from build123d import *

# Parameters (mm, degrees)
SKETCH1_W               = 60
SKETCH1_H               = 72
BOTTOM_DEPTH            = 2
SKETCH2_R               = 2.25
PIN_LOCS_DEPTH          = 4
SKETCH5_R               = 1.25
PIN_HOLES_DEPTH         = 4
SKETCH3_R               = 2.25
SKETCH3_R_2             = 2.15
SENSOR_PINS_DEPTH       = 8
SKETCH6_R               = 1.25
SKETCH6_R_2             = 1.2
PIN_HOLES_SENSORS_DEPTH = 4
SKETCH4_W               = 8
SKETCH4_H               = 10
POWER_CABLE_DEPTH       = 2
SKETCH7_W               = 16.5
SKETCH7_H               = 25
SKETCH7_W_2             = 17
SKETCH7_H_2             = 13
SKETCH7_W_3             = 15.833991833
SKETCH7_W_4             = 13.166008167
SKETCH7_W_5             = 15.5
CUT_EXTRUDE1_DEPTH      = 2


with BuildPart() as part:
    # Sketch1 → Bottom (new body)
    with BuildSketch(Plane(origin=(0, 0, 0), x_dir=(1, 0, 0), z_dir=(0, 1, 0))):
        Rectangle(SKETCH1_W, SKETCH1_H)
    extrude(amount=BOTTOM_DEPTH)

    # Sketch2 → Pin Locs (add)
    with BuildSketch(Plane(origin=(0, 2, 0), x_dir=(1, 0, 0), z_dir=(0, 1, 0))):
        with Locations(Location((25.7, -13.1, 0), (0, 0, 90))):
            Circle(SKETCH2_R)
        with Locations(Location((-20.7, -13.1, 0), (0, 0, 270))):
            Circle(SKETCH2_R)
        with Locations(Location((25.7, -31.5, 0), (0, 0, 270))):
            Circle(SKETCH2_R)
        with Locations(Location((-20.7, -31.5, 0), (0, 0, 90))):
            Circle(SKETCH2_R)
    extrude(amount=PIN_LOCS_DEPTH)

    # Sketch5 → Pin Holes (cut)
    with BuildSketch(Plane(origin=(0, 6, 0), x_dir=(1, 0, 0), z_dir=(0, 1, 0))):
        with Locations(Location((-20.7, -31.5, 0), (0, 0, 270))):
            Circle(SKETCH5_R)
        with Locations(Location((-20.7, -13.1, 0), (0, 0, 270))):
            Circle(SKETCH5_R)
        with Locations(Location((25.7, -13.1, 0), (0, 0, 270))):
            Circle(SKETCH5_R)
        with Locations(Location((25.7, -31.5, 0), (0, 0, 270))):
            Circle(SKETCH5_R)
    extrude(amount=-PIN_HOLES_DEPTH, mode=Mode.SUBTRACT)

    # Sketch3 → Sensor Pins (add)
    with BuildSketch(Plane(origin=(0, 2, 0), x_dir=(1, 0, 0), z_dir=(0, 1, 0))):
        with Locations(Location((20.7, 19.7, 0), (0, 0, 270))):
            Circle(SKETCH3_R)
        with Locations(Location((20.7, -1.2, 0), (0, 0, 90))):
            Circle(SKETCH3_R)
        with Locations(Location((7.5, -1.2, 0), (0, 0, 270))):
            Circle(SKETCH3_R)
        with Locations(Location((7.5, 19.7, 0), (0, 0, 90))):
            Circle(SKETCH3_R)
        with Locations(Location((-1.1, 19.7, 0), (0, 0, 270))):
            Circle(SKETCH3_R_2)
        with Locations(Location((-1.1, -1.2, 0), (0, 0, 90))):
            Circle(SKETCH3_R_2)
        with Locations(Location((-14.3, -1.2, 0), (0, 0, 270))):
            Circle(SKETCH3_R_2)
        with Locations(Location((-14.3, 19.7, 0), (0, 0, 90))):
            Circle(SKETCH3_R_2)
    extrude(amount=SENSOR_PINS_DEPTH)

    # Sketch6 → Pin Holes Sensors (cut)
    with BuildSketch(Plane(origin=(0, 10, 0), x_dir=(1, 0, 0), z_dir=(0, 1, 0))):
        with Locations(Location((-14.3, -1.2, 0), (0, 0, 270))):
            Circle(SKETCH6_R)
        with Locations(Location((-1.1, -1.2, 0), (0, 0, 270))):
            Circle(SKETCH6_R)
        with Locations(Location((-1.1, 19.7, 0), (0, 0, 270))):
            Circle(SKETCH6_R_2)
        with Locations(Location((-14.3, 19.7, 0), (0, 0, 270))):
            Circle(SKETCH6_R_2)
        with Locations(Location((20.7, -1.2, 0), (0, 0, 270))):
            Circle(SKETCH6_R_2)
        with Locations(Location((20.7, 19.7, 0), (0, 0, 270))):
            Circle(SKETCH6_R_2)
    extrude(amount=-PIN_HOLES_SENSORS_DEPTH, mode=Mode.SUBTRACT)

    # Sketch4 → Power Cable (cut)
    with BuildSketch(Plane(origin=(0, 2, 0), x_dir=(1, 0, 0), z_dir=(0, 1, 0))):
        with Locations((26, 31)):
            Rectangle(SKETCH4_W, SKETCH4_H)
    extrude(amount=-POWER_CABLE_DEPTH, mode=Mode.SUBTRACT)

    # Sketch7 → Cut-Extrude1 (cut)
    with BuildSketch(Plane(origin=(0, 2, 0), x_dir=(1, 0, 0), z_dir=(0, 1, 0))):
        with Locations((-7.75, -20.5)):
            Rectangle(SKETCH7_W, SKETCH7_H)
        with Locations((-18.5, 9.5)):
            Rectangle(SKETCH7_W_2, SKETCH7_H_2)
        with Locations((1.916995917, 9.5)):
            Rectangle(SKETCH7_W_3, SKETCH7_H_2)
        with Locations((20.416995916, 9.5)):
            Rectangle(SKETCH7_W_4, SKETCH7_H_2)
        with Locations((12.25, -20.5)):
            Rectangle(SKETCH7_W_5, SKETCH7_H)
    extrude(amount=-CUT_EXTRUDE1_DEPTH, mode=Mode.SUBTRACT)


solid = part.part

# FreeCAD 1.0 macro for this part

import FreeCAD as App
import Part
import Sketcher
Q = App.Units.Quantity

doc = App.newDocument("Part")
params = doc.addObject("Spreadsheet::Sheet", "Params")
for row, (alias, value) in enumerate([
    ("sketch1_width", "60 mm"),
    ("sketch1_height", "72 mm"),
    ("pad1_length", "2 mm"),
    ("sketch2_diameter", "4.5 mm"),
    ("pad2_length", "4 mm"),
    ("sketch3_diameter", "2.5 mm"),
    ("pocket1_length", "4 mm"),
    ("sketch4_diameter", "4.5 mm"),
    ("sketch4_diameter2", "4.3 mm"),
    ("pad3_length", "8 mm"),
    ("sketch5_diameter", "2.5 mm"),
    ("sketch5_diameter2", "2.4 mm"),
    ("pocket2_length", "4 mm"),
    ("sketch6_width", "8 mm"),
    ("sketch6_height", "10 mm"),
    ("pocket3_length", "2 mm"),
    ("sketch7_width", "17 mm"),
    ("sketch7_height", "25 mm"),
    ("sketch7_height2", "13 mm"),
    ("sketch7_width2", "16.5 mm"),
    ("sketch7_width3", "15.5 mm"),
    ("pocket4_length", "2 mm"),
], start=1):
    params.set(f"A{row}", alias)
    params.set(f"B{row}", "=" + value)
    params.setAlias(f"B{row}", alias)

body = doc.addObject("PartDesign::Body", "Body")

# Sketch on XZ plane
sketch1 = doc.addObject("Sketcher::SketchObject", "Sketch")
body.addObject(sketch1)
sketch1.AttachmentSupport = (doc.XZ_Plane, [""])
sketch1.MapMode = "FlatFace"
sketch1.addGeometry([
    Part.LineSegment(App.Vector(-30, -36, 0), App.Vector(-30, 36, 0)),
    Part.LineSegment(App.Vector(-30, 36, 0), App.Vector(30, 36, 0)),
    Part.LineSegment(App.Vector(30, 36, 0), App.Vector(30, -36, 0)),
    Part.LineSegment(App.Vector(30, -36, 0), App.Vector(-30, -36, 0)),
], False)
sketch1.addConstraint([
    Sketcher.Constraint("Coincident", 0, 2, 1, 1),
    Sketcher.Constraint("Coincident", 1, 2, 2, 1),
    Sketcher.Constraint("Coincident", 2, 2, 3, 1),
    Sketcher.Constraint("Coincident", 3, 2, 0, 1),
    Sketcher.Constraint("Vertical", 0),
    Sketcher.Constraint("Horizontal", 1),
    Sketcher.Constraint("Vertical", 2),
    Sketcher.Constraint("Horizontal", 3),
    Sketcher.Constraint("Symmetric", 0, 2, 2, 2, -1, 1),
    Sketcher.Constraint("DistanceX", 1, 1, 1, 2, Q("60 mm")),
    Sketcher.Constraint("DistanceY", 0, 1, 0, 2, Q("72 mm")),
])
sketch1.setExpression("Constraints[9]", "Params.sketch1_width")
sketch1.setExpression("Constraints[10]", "Params.sketch1_height")
pad1 = doc.addObject("PartDesign::Pad", "Pad")
body.addObject(pad1)
pad1.Profile = sketch1
pad1.setExpression("Length", "Params.pad1_length")
pad1.Reversed = True

# Sketch on XZ plane
sketch2 = doc.addObject("Sketcher::SketchObject", "Sketch001")
body.addObject(sketch2)
sketch2.AttachmentSupport = (doc.XZ_Plane, [""])
sketch2.MapMode = "FlatFace"
sketch2.AttachmentOffset = App.Placement(App.Vector(0, 0, -2), App.Rotation())
sketch2.addGeometry([
    Part.Circle(App.Vector(25.7, 13.1, 0), App.Vector(0, 0, 1), 2.2),
    Part.Circle(App.Vector(-20.7, 13.1, 0), App.Vector(0, 0, 1), 2.2),
    Part.Circle(App.Vector(25.7, 31.5, 0), App.Vector(0, 0, 1), 2.2),
    Part.Circle(App.Vector(-20.7, 31.5, 0), App.Vector(0, 0, 1), 2.2),
], False)
sketch2.addConstraint([
    Sketcher.Constraint("Equal", 0, 1),
    Sketcher.Constraint("Equal", 1, 2),
    Sketcher.Constraint("Equal", 2, 3),
    Sketcher.Constraint("Horizontal", 0, 3, 1, 3),
    Sketcher.Constraint("Horizontal", 2, 3, 3, 3),
    Sketcher.Constraint("Vertical", 0, 3, 2, 3),
    Sketcher.Constraint("Vertical", 1, 3, 3, 3),
    Sketcher.Constraint("Diameter", 0, Q("4.5 mm")),
    Sketcher.Constraint("DistanceX", -1, 1, 0, 3, Q("25.7 mm")),
    Sketcher.Constraint("DistanceY", -1, 1, 0, 3, Q("13.1 mm")),
    Sketcher.Constraint("DistanceX", 1, 3, -1, 1, Q("20.7 mm")),
    Sketcher.Constraint("DistanceY", -1, 1, 2, 3, Q("31.5 mm")),
])
sketch2.setExpression("Constraints[7]", "Params.sketch2_diameter")
pad2 = doc.addObject("PartDesign::Pad", "Pad001")
body.addObject(pad2)
pad2.Profile = sketch2
pad2.setExpression("Length", "Params.pad2_length")
pad2.Reversed = True

# Sketch on XZ plane
sketch3 = doc.addObject("Sketcher::SketchObject", "Sketch002")
body.addObject(sketch3)
sketch3.AttachmentSupport = (doc.XZ_Plane, [""])
sketch3.MapMode = "FlatFace"
sketch3.AttachmentOffset = App.Placement(App.Vector(0, 0, -6), App.Rotation())
sketch3.addGeometry([
    Part.Circle(App.Vector(-20.7, 31.5, 0), App.Vector(0, 0, 1), 1.2),
    Part.Circle(App.Vector(-20.7, 13.1, 0), App.Vector(0, 0, 1), 1.2),
    Part.Circle(App.Vector(25.7, 13.1, 0), App.Vector(0, 0, 1), 1.2),
    Part.Circle(App.Vector(25.7, 31.5, 0), App.Vector(0, 0, 1), 1.2),
], False)
sketch3.addConstraint([
    Sketcher.Constraint("Equal", 0, 1),
    Sketcher.Constraint("Equal", 1, 2),
    Sketcher.Constraint("Equal", 2, 3),
    Sketcher.Constraint("Horizontal", 1, 3, 2, 3),
    Sketcher.Constraint("Horizontal", 0, 3, 3, 3),
    Sketcher.Constraint("Vertical", 0, 3, 1, 3),
    Sketcher.Constraint("Vertical", 2, 3, 3, 3),
    Sketcher.Constraint("Diameter", 0, Q("2.5 mm")),
    Sketcher.Constraint("DistanceX", 0, 3, -1, 1, Q("20.7 mm")),
    Sketcher.Constraint("DistanceY", -1, 1, 0, 3, Q("31.5 mm")),
    Sketcher.Constraint("DistanceY", -1, 1, 1, 3, Q("13.1 mm")),
    Sketcher.Constraint("DistanceX", -1, 1, 2, 3, Q("25.7 mm")),
])
sketch3.setExpression("Constraints[7]", "Params.sketch3_diameter")
pocket1 = doc.addObject("PartDesign::Pocket", "Pocket")
body.addObject(pocket1)
pocket1.Profile = sketch3
pocket1.setExpression("Length", "Params.pocket1_length")
pocket1.Reversed = True

# Sketch on XZ plane
sketch4 = doc.addObject("Sketcher::SketchObject", "Sketch003")
body.addObject(sketch4)
sketch4.AttachmentSupport = (doc.XZ_Plane, [""])
sketch4.MapMode = "FlatFace"
sketch4.AttachmentOffset = App.Placement(App.Vector(0, 0, -2), App.Rotation())
sketch4.addGeometry([
    Part.Circle(App.Vector(20.7, -19.7, 0), App.Vector(0, 0, 1), 2.2),  # 0
    Part.Circle(App.Vector(20.7, 1.2, 0), App.Vector(0, 0, 1), 2.2),  # 1
    Part.Circle(App.Vector(7.5, 1.2, 0), App.Vector(0, 0, 1), 2.2),  # 2
    Part.Circle(App.Vector(7.5, -19.7, 0), App.Vector(0, 0, 1), 2.2),  # 3
    Part.Circle(App.Vector(-1.1, -19.7, 0), App.Vector(0, 0, 1), 2.1),  # 4
    Part.Circle(App.Vector(-1.1, 1.2, 0), App.Vector(0, 0, 1), 2.1),  # 5
    Part.Circle(App.Vector(-14.3, 1.2, 0), App.Vector(0, 0, 1), 2.1),  # 6
    Part.Circle(App.Vector(-14.3, -19.7, 0), App.Vector(0, 0, 1), 2.1),  # 7
], False)
sketch4.addConstraint([
    Sketcher.Constraint("Equal", 0, 1),
    Sketcher.Constraint("Equal", 1, 2),
    Sketcher.Constraint("Equal", 2, 3),
    Sketcher.Constraint("Equal", 4, 5),
    Sketcher.Constraint("Equal", 5, 6),
    Sketcher.Constraint("Equal", 6, 7),
    Sketcher.Constraint("Horizontal", 1, 3, 2, 3),
    Sketcher.Constraint("Horizontal", 0, 3, 3, 3),
    Sketcher.Constraint("Horizontal", 3, 3, 4, 3),
    Sketcher.Constraint("Horizontal", 2, 3, 5, 3),
    Sketcher.Constraint("Horizontal", 5, 3, 6, 3),
    Sketcher.Constraint("Horizontal", 4, 3, 7, 3),
    Sketcher.Constraint("Vertical", 0, 3, 1, 3),
    Sketcher.Constraint("Vertical", 2, 3, 3, 3),
    Sketcher.Constraint("Vertical", 4, 3, 5, 3),
    Sketcher.Constraint("Vertical", 6, 3, 7, 3),
    Sketcher.Constraint("Diameter", 0, Q("4.5 mm")),
    Sketcher.Constraint("Diameter", 4, Q("4.3 mm")),
    Sketcher.Constraint("DistanceX", 6, 3, 1, 3, Q("35 mm")),
    Sketcher.Constraint("DistanceX", -1, 1, 0, 3, Q("20.7 mm")),
    Sketcher.Constraint("DistanceY", 0, 3, -1, 1, Q("19.7 mm")),
    Sketcher.Constraint("DistanceY", -1, 1, 1, 3, Q("1.2 mm")),
    Sketcher.Constraint("DistanceX", -1, 1, 2, 3, Q("7.5 mm")),
    Sketcher.Constraint("DistanceX", 4, 3, -1, 1, Q("1.1 mm")),
])
sketch4.setExpression("Constraints[16]", "Params.sketch4_diameter")
sketch4.setExpression("Constraints[17]", "Params.sketch4_diameter2")
pad3 = doc.addObject("PartDesign::Pad", "Pad002")
body.addObject(pad3)
pad3.Profile = sketch4
pad3.setExpression("Length", "Params.pad3_length")
pad3.Reversed = True

# Sketch on XZ plane
sketch5 = doc.addObject("Sketcher::SketchObject", "Sketch004")
body.addObject(sketch5)
sketch5.AttachmentSupport = (doc.XZ_Plane, [""])
sketch5.MapMode = "FlatFace"
sketch5.AttachmentOffset = App.Placement(App.Vector(0, 0, -10), App.Rotation())
sketch5.addGeometry([
    Part.Circle(App.Vector(-14.3, 1.2, 0), App.Vector(0, 0, 1), 1.2),  # 0
    Part.Circle(App.Vector(-1.1, 1.2, 0), App.Vector(0, 0, 1), 1.2),  # 1
    Part.Circle(App.Vector(-1.1, -19.7, 0), App.Vector(0, 0, 1), 1.2),  # 2
    Part.Circle(App.Vector(-14.3, -19.7, 0), App.Vector(0, 0, 1), 1.2),  # 3
    Part.Circle(App.Vector(20.7, 1.2, 0), App.Vector(0, 0, 1), 1.2),  # 4
    Part.Circle(App.Vector(20.7, -19.7, 0), App.Vector(0, 0, 1), 1.2),  # 5
], False)
sketch5.addConstraint([
    Sketcher.Constraint("Equal", 0, 1),
    Sketcher.Constraint("Equal", 2, 3),
    Sketcher.Constraint("Equal", 3, 4),
    Sketcher.Constraint("Equal", 4, 5),
    Sketcher.Constraint("Horizontal", 0, 3, 1, 3),
    Sketcher.Constraint("Horizontal", 2, 3, 3, 3),
    Sketcher.Constraint("Horizontal", 1, 3, 4, 3),
    Sketcher.Constraint("Horizontal", 3, 3, 5, 3),
    Sketcher.Constraint("Vertical", 1, 3, 2, 3),
    Sketcher.Constraint("Vertical", 0, 3, 3, 3),
    Sketcher.Constraint("Vertical", 4, 3, 5, 3),
    Sketcher.Constraint("Diameter", 0, Q("2.5 mm")),
    Sketcher.Constraint("Diameter", 2, Q("2.4 mm")),
    Sketcher.Constraint("DistanceX", 0, 3, 4, 3, Q("35 mm")),
    Sketcher.Constraint("DistanceX", 0, 3, -1, 1, Q("14.3 mm")),
    Sketcher.Constraint("DistanceY", -1, 1, 0, 3, Q("1.2 mm")),
    Sketcher.Constraint("DistanceX", 1, 3, -1, 1, Q("1.1 mm")),
    Sketcher.Constraint("DistanceY", 2, 3, -1, 1, Q("19.7 mm")),
])
sketch5.setExpression("Constraints[11]", "Params.sketch5_diameter")
sketch5.setExpression("Constraints[12]", "Params.sketch5_diameter2")
pocket2 = doc.addObject("PartDesign::Pocket", "Pocket001")
body.addObject(pocket2)
pocket2.Profile = sketch5
pocket2.setExpression("Length", "Params.pocket2_length")
pocket2.Reversed = True

# Sketch on XZ plane
sketch6 = doc.addObject("Sketcher::SketchObject", "Sketch005")
body.addObject(sketch6)
sketch6.AttachmentSupport = (doc.XZ_Plane, [""])
sketch6.MapMode = "FlatFace"
sketch6.AttachmentOffset = App.Placement(App.Vector(0, 0, -2), App.Rotation())
sketch6.addGeometry([
    Part.LineSegment(App.Vector(22, -36, 0), App.Vector(22, -26, 0)),
    Part.LineSegment(App.Vector(22, -26, 0), App.Vector(30, -26, 0)),
    Part.LineSegment(App.Vector(30, -26, 0), App.Vector(30, -36, 0)),
    Part.LineSegment(App.Vector(30, -36, 0), App.Vector(22, -36, 0)),
], False)
sketch6.addConstraint([
    Sketcher.Constraint("Coincident", 0, 2, 1, 1),
    Sketcher.Constraint("Coincident", 1, 2, 2, 1),
    Sketcher.Constraint("Coincident", 2, 2, 3, 1),
    Sketcher.Constraint("Coincident", 3, 2, 0, 1),
    Sketcher.Constraint("Vertical", 0),
    Sketcher.Constraint("Horizontal", 1),
    Sketcher.Constraint("Vertical", 2),
    Sketcher.Constraint("Horizontal", 3),
    Sketcher.Constraint("DistanceX", 1, 1, 1, 2, Q("8 mm")),
    Sketcher.Constraint("DistanceY", 0, 1, 0, 2, Q("10 mm")),
    Sketcher.Constraint("DistanceX", -1, 1, 0, 2, Q("22 mm")),
    Sketcher.Constraint("DistanceY", 0, 2, -1, 1, Q("26 mm")),
])
sketch6.setExpression("Constraints[8]", "Params.sketch6_width")
sketch6.setExpression("Constraints[9]", "Params.sketch6_height")
pocket3 = doc.addObject("PartDesign::Pocket", "Pocket002")
body.addObject(pocket3)
pocket3.Profile = sketch6
pocket3.setExpression("Length", "Params.pocket3_length")
pocket3.Reversed = True

# Sketch on XZ plane
sketch7 = doc.addObject("Sketcher::SketchObject", "Sketch006")
body.addObject(sketch7)
sketch7.AttachmentSupport = (doc.XZ_Plane, [""])
sketch7.MapMode = "FlatFace"
sketch7.AttachmentOffset = App.Placement(App.Vector(0, 0, -2), App.Rotation())
sketch7.addGeometry([
    Part.LineSegment(App.Vector(-16, 8, 0), App.Vector(-16, 33, 0)),  # 0
    Part.LineSegment(App.Vector(-16, 33, 0), App.Vector(0, 33, 0)),  # 1
    Part.LineSegment(App.Vector(0, 33, 0), App.Vector(0, 8, 0)),  # 2
    Part.LineSegment(App.Vector(0, 8, 0), App.Vector(-16, 8, 0)),  # 3
    Part.LineSegment(App.Vector(-27, -16, 0), App.Vector(-27, -3, 0)),  # 4
    Part.LineSegment(App.Vector(-27, -3, 0), App.Vector(-10, -3, 0)),  # 5
    Part.LineSegment(App.Vector(-10, -3, 0), App.Vector(-10, -16, 0)),  # 6
    Part.LineSegment(App.Vector(-10, -16, 0), App.Vector(-27, -16, 0)),  # 7
    Part.LineSegment(App.Vector(-6, -16, 0), App.Vector(-6, -3, 0)),  # 8
    Part.LineSegment(App.Vector(-6, -3, 0), App.Vector(10, -3, 0)),  # 9
    Part.LineSegment(App.Vector(10, -3, 0), App.Vector(10, -16, 0)),  # 10
    Part.LineSegment(App.Vector(10, -16, 0), App.Vector(-6, -16, 0)),  # 11
    Part.LineSegment(App.Vector(14, -16, 0), App.Vector(14, -3, 0)),  # 12
    Part.LineSegment(App.Vector(14, -3, 0), App.Vector(27, -3, 0)),  # 13
    Part.LineSegment(App.Vector(27, -3, 0), App.Vector(27, -16, 0)),  # 14
    Part.LineSegment(App.Vector(27, -16, 0), App.Vector(14, -16, 0)),  # 15
    Part.LineSegment(App.Vector(4, 8, 0), App.Vector(4, 33, 0)),  # 16
    Part.LineSegment(App.Vector(4, 33, 0), App.Vector(20, 33, 0)),  # 17
    Part.LineSegment(App.Vector(20, 33, 0), App.Vector(20, 8, 0)),  # 18
    Part.LineSegment(App.Vector(20, 8, 0), App.Vector(4, 8, 0)),  # 19
], False)
sketch7.addConstraint([
    Sketcher.Constraint("Coincident", 0, 2, 1, 1),
    Sketcher.Constraint("Coincident", 1, 2, 2, 1),
    Sketcher.Constraint("Coincident", 2, 2, 3, 1),
    Sketcher.Constraint("Coincident", 3, 2, 0, 1),
    Sketcher.Constraint("Coincident", 4, 2, 5, 1),
    Sketcher.Constraint("Coincident", 5, 2, 6, 1),
    Sketcher.Constraint("Coincident", 6, 2, 7, 1),
    Sketcher.Constraint("Coincident", 7, 2, 4, 1),
    Sketcher.Constraint("Coincident", 8, 2, 9, 1),
    Sketcher.Constraint("Coincident", 9, 2, 10, 1),
    Sketcher.Constraint("Coincident", 10, 2, 11, 1),
    Sketcher.Constraint("Coincident", 11, 2, 8, 1),
    Sketcher.Constraint("Coincident", 12, 2, 13, 1),
    Sketcher.Constraint("Coincident", 13, 2, 14, 1),
    Sketcher.Constraint("Coincident", 14, 2, 15, 1),
    Sketcher.Constraint("Coincident", 15, 2, 12, 1),
    Sketcher.Constraint("Coincident", 16, 2, 17, 1),
    Sketcher.Constraint("Coincident", 17, 2, 18, 1),
    Sketcher.Constraint("Coincident", 18, 2, 19, 1),
    Sketcher.Constraint("Coincident", 19, 2, 16, 1),
    Sketcher.Constraint("Vertical", 0),
    Sketcher.Constraint("Horizontal", 1),
    Sketcher.Constraint("Vertical", 2),
    Sketcher.Constraint("Horizontal", 3),
    Sketcher.Constraint("Vertical", 4),
    Sketcher.Constraint("Horizontal", 5),
    Sketcher.Constraint("Vertical", 6),
    Sketcher.Constraint("Horizontal", 7),
    Sketcher.Constraint("Vertical", 8),
    Sketcher.Constraint("Horizontal", 9),
    Sketcher.Constraint("Vertical", 10),
    Sketcher.Constraint("Horizontal", 11),
    Sketcher.Constraint("Vertical", 12),
    Sketcher.Constraint("Horizontal", 13),
    Sketcher.Constraint("Vertical", 14),
    Sketcher.Constraint("Horizontal", 15),
    Sketcher.Constraint("Vertical", 16),
    Sketcher.Constraint("Horizontal", 17),
    Sketcher.Constraint("Vertical", 18),
    Sketcher.Constraint("Horizontal", 19),
    Sketcher.Constraint("Symmetric", 4, 2, 13, 2, -2),
    Sketcher.Constraint("Horizontal", 5, 2, 8, 2),
    Sketcher.Constraint("Horizontal", 7, 2, 10, 2),
    Sketcher.Constraint("Horizontal", 11, 2, 14, 2),
    Sketcher.Constraint("Horizontal", 1, 2, 16, 2),
    Sketcher.Constraint("Horizontal", 3, 2, 18, 2),
    Sketcher.Constraint("DistanceX", 5, 1, 5, 2, Q("17 mm")),
    Sketcher.Constraint("DistanceY", 0, 1, 0, 2, Q("25 mm")),
    Sketcher.Constraint("DistanceY", 4, 1, 4, 2, Q("13 mm")),
    Sketcher.Constraint("DistanceX", 1, 1, 1, 2, Q("16.5 mm")),
    Sketcher.Constraint("DistanceX", 17, 1, 17, 2, Q("15.5 mm")),
    Sketcher.Constraint("DistanceX", 0, 2, -1, 1, Q("16 mm")),
    Sketcher.Constraint("DistanceY", -1, 1, 0, 2, Q("33 mm")),
    Sketcher.Constraint("DistanceX", 4, 2, -1, 1, Q("27 mm")),
    Sketcher.Constraint("DistanceY", 4, 2, -1, 1, Q("3 mm")),
    Sketcher.Constraint("DistanceX", 8, 2, -1, 1, Q("6 mm")),
    Sketcher.Constraint("DistanceX", -1, 1, 17, 2, Q("20 mm")),
    Sketcher.Constraint("DistanceX", 9, 2, 12, 2, Q("4 mm")),
    Sketcher.Constraint("DistanceX", 9, 1, 9, 2, Q("15.833992 mm")),
])
sketch7.setExpression("Constraints[46]", "Params.sketch7_width")
sketch7.setExpression("Constraints[47]", "Params.sketch7_height")
sketch7.setExpression("Constraints[48]", "Params.sketch7_height2")
sketch7.setExpression("Constraints[49]", "Params.sketch7_width2")
sketch7.setExpression("Constraints[50]", "Params.sketch7_width3")
pocket4 = doc.addObject("PartDesign::Pocket", "Pocket003")
body.addObject(pocket4)
pocket4.Profile = sketch7
pocket4.setExpression("Length", "Params.pocket4_length")
pocket4.Reversed = True

doc.recompute()
